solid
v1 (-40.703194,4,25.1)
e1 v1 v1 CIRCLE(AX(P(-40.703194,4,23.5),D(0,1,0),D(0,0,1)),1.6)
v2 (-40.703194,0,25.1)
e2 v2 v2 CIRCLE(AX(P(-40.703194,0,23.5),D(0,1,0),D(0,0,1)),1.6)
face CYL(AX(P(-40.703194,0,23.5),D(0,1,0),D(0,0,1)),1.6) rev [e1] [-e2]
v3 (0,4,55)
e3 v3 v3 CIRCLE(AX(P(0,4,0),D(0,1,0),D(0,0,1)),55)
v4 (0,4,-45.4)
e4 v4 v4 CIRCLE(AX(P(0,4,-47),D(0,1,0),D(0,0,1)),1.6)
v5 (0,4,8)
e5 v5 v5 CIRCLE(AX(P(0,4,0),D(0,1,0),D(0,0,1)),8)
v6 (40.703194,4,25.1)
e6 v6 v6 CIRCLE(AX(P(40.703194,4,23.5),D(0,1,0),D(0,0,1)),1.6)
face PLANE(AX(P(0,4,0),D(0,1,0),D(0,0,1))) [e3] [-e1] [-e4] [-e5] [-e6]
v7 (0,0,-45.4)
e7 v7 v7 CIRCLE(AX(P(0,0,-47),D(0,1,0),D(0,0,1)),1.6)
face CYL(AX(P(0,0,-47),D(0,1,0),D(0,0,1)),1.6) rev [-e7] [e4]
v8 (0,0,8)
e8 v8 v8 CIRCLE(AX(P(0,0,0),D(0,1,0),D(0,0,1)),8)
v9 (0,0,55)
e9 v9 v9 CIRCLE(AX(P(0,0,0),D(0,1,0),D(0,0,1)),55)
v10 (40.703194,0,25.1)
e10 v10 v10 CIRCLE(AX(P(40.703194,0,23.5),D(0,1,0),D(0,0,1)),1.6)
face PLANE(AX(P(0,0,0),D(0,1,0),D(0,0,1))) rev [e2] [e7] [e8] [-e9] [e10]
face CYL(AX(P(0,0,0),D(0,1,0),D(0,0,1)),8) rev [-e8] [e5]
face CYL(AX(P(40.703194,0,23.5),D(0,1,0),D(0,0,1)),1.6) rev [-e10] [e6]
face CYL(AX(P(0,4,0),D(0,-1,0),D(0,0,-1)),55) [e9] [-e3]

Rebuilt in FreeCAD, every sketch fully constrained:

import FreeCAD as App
import Part
import Sketcher
from FreeCAD import Vector

doc = App.newDocument("Part")
params = doc.addObject("Spreadsheet::Sheet", "Params")
for row, (alias, value) in enumerate([
    ("sketch1_diameter", "110 mm"),
    ("pad1_length", "4 mm"),
    ("sketch2_diameter", "16 mm"),
    ("sketch2_diameter2", "3.2 mm"),
], start=1):
    params.set(f"A{row}", alias)
    params.set(f"B{row}", "=" + value)
    params.setAlias(f"B{row}", alias)

body = doc.addObject("PartDesign::Body", "Body")

sketch1 = doc.addObject("Sketcher::SketchObject", "Sketch")
body.addObject(sketch1)
sketch1.AttachmentSupport = (doc.XZ_Plane, [""])
sketch1.MapMode = "FlatFace"
sketch1.addGeometry(Part.Circle(Vector(0, 0, 0), Vector(0, 0, 1), 55), False)
sketch1.addConstraint([
    Sketcher.Constraint("Coincident", 0, 3, -1, 1),
    Sketcher.Constraint("Diameter", 0, 110.0),
])
sketch1.setExpression("Constraints[1]", "Params.sketch1_diameter")
pad1 = doc.addObject("PartDesign::Pad", "Pad")
body.addObject(pad1)
pad1.Profile = sketch1
pad1.setExpression("Length", "Params.pad1_length")
pad1.Reversed = True

sketch2 = doc.addObject("Sketcher::SketchObject", "Sketch001")
body.addObject(sketch2)
sketch2.AttachmentSupport = (doc.XZ_Plane, [""])
sketch2.MapMode = "FlatFace"
sketch2.AttachmentOffset = App.Placement(Vector(0, 0, -4), App.Rotation())
sketch2.addGeometry([
    Part.Circle(Vector(0, 0, 0), Vector(0, 0, 1), 8),
    Part.Circle(Vector(0, -47, 0), Vector(0, 0, 1), 1.6),
    Part.Circle(Vector(40.7, 23.5, 0), Vector(0, 0, 1), 1.6),
    Part.Circle(Vector(-40.7, 23.5, 0), Vector(0, 0, 1), 1.6),
], False)
sketch2.addConstraint([
    Sketcher.Constraint("Coincident", 0, 3, -1, 1),
    Sketcher.Constraint("Equal", 1, 2),
    Sketcher.Constraint("Equal", 2, 3),
    Sketcher.Constraint("Symmetric", 2, 3, 3, 3, -2),
    Sketcher.Constraint("PointOnObject", 1, 3, -2),
    Sketcher.Constraint("Diameter", 0, 16.0),
    Sketcher.Constraint("Diameter", 1, 3.2),
    Sketcher.Constraint("DistanceY", 1, 3, -1, 1, 47.0),
    Sketcher.Constraint("DistanceY", -1, 1, 2, 3, 23.5),
    Sketcher.Constraint("DistanceX", -1, 1, 2, 3, 40.703194),
])
sketch2.setExpression("Constraints[5]", "Params.sketch2_diameter")
sketch2.setExpression("Constraints[6]", "Params.sketch2_diameter2")
pocket1 = doc.addObject("PartDesign::Pocket", "Pocket")
body.addObject(pocket1)
pocket1.Profile = sketch2
pocket1.Type = "ThroughAll"
pocket1.Reversed = True

doc.recompute()
